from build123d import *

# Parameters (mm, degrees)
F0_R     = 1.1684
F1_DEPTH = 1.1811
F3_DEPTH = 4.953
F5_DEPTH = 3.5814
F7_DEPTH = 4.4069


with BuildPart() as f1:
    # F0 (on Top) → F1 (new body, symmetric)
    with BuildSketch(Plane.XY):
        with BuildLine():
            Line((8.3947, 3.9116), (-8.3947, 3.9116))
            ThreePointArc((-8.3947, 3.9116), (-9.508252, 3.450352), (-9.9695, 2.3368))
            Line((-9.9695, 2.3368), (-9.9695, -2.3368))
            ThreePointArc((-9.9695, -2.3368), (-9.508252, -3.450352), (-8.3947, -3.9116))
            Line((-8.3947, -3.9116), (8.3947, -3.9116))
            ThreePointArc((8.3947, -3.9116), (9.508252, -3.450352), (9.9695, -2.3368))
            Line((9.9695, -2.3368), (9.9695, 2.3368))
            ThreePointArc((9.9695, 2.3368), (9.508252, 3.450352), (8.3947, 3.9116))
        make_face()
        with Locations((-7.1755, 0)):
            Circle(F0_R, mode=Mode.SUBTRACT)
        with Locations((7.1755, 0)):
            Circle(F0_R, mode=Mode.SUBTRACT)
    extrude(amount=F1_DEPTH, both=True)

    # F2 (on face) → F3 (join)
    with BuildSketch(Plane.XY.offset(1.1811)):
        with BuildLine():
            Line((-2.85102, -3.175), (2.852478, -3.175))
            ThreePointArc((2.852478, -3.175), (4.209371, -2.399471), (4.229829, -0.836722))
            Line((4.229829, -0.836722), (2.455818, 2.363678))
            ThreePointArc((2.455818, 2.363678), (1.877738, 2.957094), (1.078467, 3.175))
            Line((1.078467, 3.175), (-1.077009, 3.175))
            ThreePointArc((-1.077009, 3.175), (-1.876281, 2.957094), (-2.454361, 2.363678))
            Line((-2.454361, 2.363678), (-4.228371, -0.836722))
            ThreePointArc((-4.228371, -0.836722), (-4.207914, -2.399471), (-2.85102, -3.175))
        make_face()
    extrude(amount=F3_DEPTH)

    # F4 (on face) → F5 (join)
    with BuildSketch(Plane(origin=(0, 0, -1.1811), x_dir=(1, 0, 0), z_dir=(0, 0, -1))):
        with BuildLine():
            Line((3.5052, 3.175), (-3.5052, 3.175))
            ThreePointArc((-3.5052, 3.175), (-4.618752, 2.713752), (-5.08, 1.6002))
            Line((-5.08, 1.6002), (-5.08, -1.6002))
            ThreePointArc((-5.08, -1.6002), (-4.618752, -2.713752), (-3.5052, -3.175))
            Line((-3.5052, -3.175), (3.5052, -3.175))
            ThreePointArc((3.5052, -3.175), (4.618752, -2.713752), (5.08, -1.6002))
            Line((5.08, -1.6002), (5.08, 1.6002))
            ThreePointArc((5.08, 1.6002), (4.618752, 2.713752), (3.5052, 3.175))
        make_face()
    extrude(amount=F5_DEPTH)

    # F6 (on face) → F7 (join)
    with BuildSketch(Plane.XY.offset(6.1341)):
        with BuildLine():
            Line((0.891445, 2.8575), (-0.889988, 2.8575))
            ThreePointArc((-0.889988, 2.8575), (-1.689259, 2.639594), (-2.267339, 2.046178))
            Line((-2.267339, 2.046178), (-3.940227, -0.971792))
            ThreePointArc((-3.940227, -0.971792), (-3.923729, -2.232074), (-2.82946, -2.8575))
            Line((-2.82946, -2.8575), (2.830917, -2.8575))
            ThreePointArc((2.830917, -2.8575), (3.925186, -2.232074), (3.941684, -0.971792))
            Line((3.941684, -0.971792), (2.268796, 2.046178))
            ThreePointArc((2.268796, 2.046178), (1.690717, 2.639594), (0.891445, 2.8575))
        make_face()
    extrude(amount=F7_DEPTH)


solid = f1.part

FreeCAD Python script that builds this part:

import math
import FreeCAD as App
import Part
import Sketcher

V = App.Vector
Q = App.Units.Quantity

doc = App.newDocument("Part")
body = doc.addObject("PartDesign::Body", "Body")

# Sketch on XY plane
sketch1 = doc.addObject("Sketcher::SketchObject", "Sketch")
body.addObject(sketch1)
sketch1.AttachmentSupport = (doc.XY_Plane, [""])
sketch1.MapMode = "FlatFace"
sketch1.addGeometry([
    Part.LineSegment(V(8.4, 3.9, 0), V(-8.4, 3.9, 0)),  # 0
    Part.ArcOfCircle(Part.Circle(V(-8.4, 2.3, 0), V(0, 0, 1), 1.6), math.radians(90), math.radians(180)),  # 1
    Part.LineSegment(V(-10, 2.3, 0), V(-10, -2.3, 0)),  # 2
    Part.ArcOfCircle(Part.Circle(V(-8.4, -2.3, 0), V(0, 0, 1), 1.6), math.radians(180), math.radians(270)),  # 3
    Part.LineSegment(V(-8.4, -3.9, 0), V(8.4, -3.9, 0)),  # 4
    Part.ArcOfCircle(Part.Circle(V(8.4, -2.3, 0), V(0, 0, 1), 1.6), math.radians(-90), math.radians(0)),  # 5
    Part.LineSegment(V(10, -2.3, 0), V(10, 2.3, 0)),  # 6
    Part.ArcOfCircle(Part.Circle(V(8.4, 2.3, 0), V(0, 0, 1), 1.6), math.radians(0), math.radians(90)),  # 7
    Part.Circle(V(-7.2, 0, 0), V(0, 0, 1), 1.2),  # 8
    Part.Circle(V(7.2, 0, 0), V(0, 0, 1), 1.2),  # 9
], False)
sketch1.addConstraint([
    Sketcher.Constraint("Tangent", 0, 2, 1, 1),
    Sketcher.Constraint("Tangent", 1, 2, 2, 1),
    Sketcher.Constraint("Tangent", 2, 2, 3, 1),
    Sketcher.Constraint("Tangent", 3, 2, 4, 1),
    Sketcher.Constraint("Tangent", 4, 2, 5, 1),
    Sketcher.Constraint("Tangent", 5, 2, 6, 1),
    Sketcher.Constraint("Tangent", 6, 2, 7, 1),
    Sketcher.Constraint("Tangent", 7, 2, 0, 1),
    Sketcher.Constraint("Horizontal", 0),
    Sketcher.Constraint("Vertical", 2),
    Sketcher.Constraint("Horizontal", 4),
    Sketcher.Constraint("Vertical", 6),
    Sketcher.Constraint("Equal", 1, 3),
    Sketcher.Constraint("Equal", 3, 5),
    Sketcher.Constraint("Equal", 5, 7),
    Sketcher.Constraint("Equal", 8, 9),
    Sketcher.Constraint("Symmetric", 1, 3, 5, 3, -1, 1),
    Sketcher.Constraint("Symmetric", 8, 3, 9, 3, -1, 1),
    Sketcher.Constraint("PointOnObject", 8, 3, -1),
    Sketcher.Constraint("Diameter", 8, Q("0.092 in")),
    Sketcher.Constraint("Radius", 1, Q("0.062 in")),
    Sketcher.Constraint("DistanceX", 0, 2, 0, 1, Q("0.661 in")),
    Sketcher.Constraint("DistanceY", 2, 2, 2, 1, Q("0.184 in")),
    Sketcher.Constraint("DistanceX", 1, 2, 8, 3, Q("0.11 in")),
])
pad1 = doc.addObject("PartDesign::Pad", "Pad")
body.addObject(pad1)
pad1.Profile = sketch1
pad1.Length = Q("0.093 in")
pad1.Midplane = True

# Sketch on XY plane
sketch2 = doc.addObject("Sketcher::SketchObject", "Sketch001")
body.addObject(sketch2)
sketch2.AttachmentSupport = (doc.XY_Plane, [""])
sketch2.MapMode = "FlatFace"
sketch2.AttachmentOffset = App.Placement(V(0, 0, 0.0465 * 25.4), App.Rotation())
sketch2.addGeometry([
    Part.LineSegment(V(-2.9, -3.2, 0), V(2.9, -3.2, 0)),  # 0
    Part.ArcOfCircle(Part.Circle(V(2.9, -1.6, 0), V(0, 0, 1), 1.6), math.radians(-90), math.radians(29)),  # 1
    Part.LineSegment(V(4.2, -0.8, 0), V(2.5, 2.4, 0)),  # 2
    Part.ArcOfCircle(Part.Circle(V(1.1, 1.6, 0), V(0, 0, 1), 1.6), math.radians(29), math.radians(90)),  # 3
    Part.LineSegment(V(1.1, 3.2, 0), V(-1.1, 3.2, 0)),  # 4
    Part.ArcOfCircle(Part.Circle(V(-1.1, 1.6, 0), V(0, 0, 1), 1.6), math.radians(90), math.radians(151)),  # 5
    Part.LineSegment(V(-2.5, 2.4, 0), V(-4.2, -0.8, 0)),  # 6
    Part.ArcOfCircle(Part.Circle(V(-2.9, -1.6, 0), V(0, 0, 1), 1.6), math.radians(151), math.radians(270)),  # 7
], False)
sketch2.addConstraint([
    Sketcher.Constraint("Tangent", 0, 2, 1, 1),
    Sketcher.Constraint("Tangent", 1, 2, 2, 1),
    Sketcher.Constraint("Tangent", 2, 2, 3, 1),
    Sketcher.Constraint("Tangent", 3, 2, 4, 1),
    Sketcher.Constraint("Tangent", 4, 2, 5, 1),
    Sketcher.Constraint("Tangent", 5, 2, 6, 1),
    Sketcher.Constraint("Tangent", 6, 2, 7, 1),
    Sketcher.Constraint("Tangent", 7, 2, 0, 1),
    Sketcher.Constraint("Horizontal", 0),
    Sketcher.Constraint("Horizontal", 4),
    Sketcher.Constraint("Equal", 3, 5),
    Sketcher.Constraint("Equal", 5, 7),
    Sketcher.Constraint("Horizontal", 1, 3, 7, 3),
    Sketcher.Constraint("Horizontal", 2, 2, 5, 2),
    Sketcher.Constraint("Angle", 2, Q("119.000004 deg")),
    Sketcher.Constraint("Radius", 1, Q("0.062 in")),
    Sketcher.Constraint("DistanceY", 1, 3, -1, 1, Q("0.063 in")),
    Sketcher.Constraint("DistanceY", -1, 1, 3, 3, Q("0.0630001 in")),
    Sketcher.Constraint("DistanceX", 7, 3, 0, 2, 5.703498),
    Sketcher.Constraint("DistanceX", 5, 3, -1, 1, 1.077011),
])
pad2 = doc.addObject("PartDesign::Pad", "Pad001")
body.addObject(pad2)
pad2.Profile = sketch2
pad2.Length = Q("0.195 in")

# Sketch on XY plane
sketch3 = doc.addObject("Sketcher::SketchObject", "Sketch002")
body.addObject(sketch3)
sketch3.AttachmentSupport = (doc.XY_Plane, [""])
sketch3.MapMode = "FlatFace"
sketch3.AttachmentOffset = App.Placement(V(0, 0, -0.0465 * 25.4), App.Rotation())
sketch3.addGeometry([
    Part.LineSegment(V(3.5, -3.2, 0), V(-3.5, -3.2, 0)),  # 0
    Part.ArcOfCircle(Part.Circle(V(-3.5, -1.6, 0), V(0, 0, 1), 1.6), math.radians(180), math.radians(270)),  # 1
    Part.LineSegment(V(-5.1, -1.6, 0), V(-5.1, 1.6, 0)),  # 2
    Part.ArcOfCircle(Part.Circle(V(-3.5, 1.6, 0), V(0, 0, 1), 1.6), math.radians(90), math.radians(180)),  # 3
    Part.LineSegment(V(-3.5, 3.2, 0), V(3.5, 3.2, 0)),  # 4
    Part.ArcOfCircle(Part.Circle(V(3.5, 1.6, 0), V(0, 0, 1), 1.6), math.radians(0), math.radians(90)),  # 5
    Part.LineSegment(V(5.1, 1.6, 0), V(5.1, -1.6, 0)),  # 6
    Part.ArcOfCircle(Part.Circle(V(3.5, -1.6, 0), V(0, 0, 1), 1.6), math.radians(-90), math.radians(0)),  # 7
], False)
sketch3.addConstraint([
    Sketcher.Constraint("Tangent", 0, 2, 1, 2),
    Sketcher.Constraint("Tangent", 1, 1, 2, 1),
    Sketcher.Constraint("Tangent", 2, 2, 3, 2),
    Sketcher.Constraint("Tangent", 3, 1, 4, 1),
    Sketcher.Constraint("Tangent", 4, 2, 5, 2),
    Sketcher.Constraint("Tangent", 5, 1, 6, 1),
    Sketcher.Constraint("Tangent", 6, 2, 7, 2),
    Sketcher.Constraint("Tangent", 7, 1, 0, 1),
    Sketcher.Constraint("Horizontal", 0),
    Sketcher.Constraint("Vertical", 2),
    Sketcher.Constraint("Horizontal", 4),
    Sketcher.Constraint("Vertical", 6),
    Sketcher.Constraint("Equal", 1, 3),
    Sketcher.Constraint("Equal", 3, 5),
    Sketcher.Constraint("Equal", 5, 7),
    Sketcher.Constraint("Symmetric", 1, 3, 5, 3, -1, 1),
    Sketcher.Constraint("Radius", 1, Q("0.062 in")),
    Sketcher.Constraint("DistanceX", 1, 1, -1, 1, Q("0.2 in")),
    Sketcher.Constraint("DistanceY", 2, 1, 2, 2, Q("0.126 in")),
])
pad3 = doc.addObject("PartDesign::Pad", "Pad002")
body.addObject(pad3)
pad3.Profile = sketch3
pad3.Length = Q("0.141 in")
pad3.Reversed = True

# Sketch on XY plane
sketch4 = doc.addObject("Sketcher::SketchObject", "Sketch003")
body.addObject(sketch4)
sketch4.AttachmentSupport = (doc.XY_Plane, [""])
sketch4.MapMode = "FlatFace"
sketch4.AttachmentOffset = App.Placement(V(0, 0, 0.2415 * 25.4), App.Rotation())
sketch4.addGeometry([
    Part.LineSegment(V(0.9, 2.9, 0), V(-0.9, 2.9, 0)),  # 0
    Part.ArcOfCircle(Part.Circle(V(-0.9, 1.3, 0), V(0, 0, 1), 1.6), math.radians(90), math.radians(151)),  # 1
    Part.LineSegment(V(-2.3, 2, 0), V(-3.9, -1, 0)),  # 2
    Part.ArcOfCircle(Part.Circle(V(-2.8, -1.6, 0), V(0, 0, 1), 1.3), math.radians(151), math.radians(270)),  # 3
    Part.LineSegment(V(-2.8, -2.9, 0), V(2.8, -2.9, 0)),  # 4
    Part.ArcOfCircle(Part.Circle(V(2.8, -1.6, 0), V(0, 0, 1), 1.3), math.radians(-90), math.radians(29)),  # 5
    Part.LineSegment(V(3.9, -1, 0), V(2.3, 2, 0)),  # 6
    Part.ArcOfCircle(Part.Circle(V(0.9, 1.3, 0), V(0, 0, 1), 1.6), math.radians(29), math.radians(90)),  # 7
], False)
sketch4.addConstraint([
    Sketcher.Constraint("Tangent", 0, 2, 1, 1),
    Sketcher.Constraint("Tangent", 1, 2, 2, 1),
    Sketcher.Constraint("Tangent", 2, 2, 3, 1),
    Sketcher.Constraint("Tangent", 3, 2, 4, 1),
    Sketcher.Constraint("Tangent", 4, 2, 5, 1),
    Sketcher.Constraint("Tangent", 5, 2, 6, 1),
    Sketcher.Constraint("Tangent", 6, 2, 7, 1),
    Sketcher.Constraint("Tangent", 7, 2, 0, 1),
    Sketcher.Constraint("Horizontal", 0),
    Sketcher.Constraint("Horizontal", 4),
    Sketcher.Constraint("Equal", 3, 5),
    Sketcher.Constraint("Horizontal", 2, 2, 5, 2),
    Sketcher.Constraint("Horizontal", 1, 2, 6, 2),
    Sketcher.Constraint("Radius", 3, Q("0.05 in")),
    Sketcher.Constraint("Angle", 2, Q("-118.999999 deg")),
    Sketcher.Constraint("Radius", 1, Q("0.0619999 in")),
    Sketcher.Constraint("DistanceY", 3, 3, -1, 1, Q("0.0625 in")),
    Sketcher.Constraint("DistanceY", 3, 3, 1, 3, Q("0.1130001 in")),
    Sketcher.Constraint("DistanceX", 0, 2, 0, 1, 1.781433),
    Sketcher.Constraint("DistanceX", 1, 3, -1, 1, 0.889989),
])
pad4 = doc.addObject("PartDesign::Pad", "Pad003")
body.addObject(pad4)
pad4.Profile = sketch4
pad4.Length = Q("0.1735 in")

doc.recompute()
